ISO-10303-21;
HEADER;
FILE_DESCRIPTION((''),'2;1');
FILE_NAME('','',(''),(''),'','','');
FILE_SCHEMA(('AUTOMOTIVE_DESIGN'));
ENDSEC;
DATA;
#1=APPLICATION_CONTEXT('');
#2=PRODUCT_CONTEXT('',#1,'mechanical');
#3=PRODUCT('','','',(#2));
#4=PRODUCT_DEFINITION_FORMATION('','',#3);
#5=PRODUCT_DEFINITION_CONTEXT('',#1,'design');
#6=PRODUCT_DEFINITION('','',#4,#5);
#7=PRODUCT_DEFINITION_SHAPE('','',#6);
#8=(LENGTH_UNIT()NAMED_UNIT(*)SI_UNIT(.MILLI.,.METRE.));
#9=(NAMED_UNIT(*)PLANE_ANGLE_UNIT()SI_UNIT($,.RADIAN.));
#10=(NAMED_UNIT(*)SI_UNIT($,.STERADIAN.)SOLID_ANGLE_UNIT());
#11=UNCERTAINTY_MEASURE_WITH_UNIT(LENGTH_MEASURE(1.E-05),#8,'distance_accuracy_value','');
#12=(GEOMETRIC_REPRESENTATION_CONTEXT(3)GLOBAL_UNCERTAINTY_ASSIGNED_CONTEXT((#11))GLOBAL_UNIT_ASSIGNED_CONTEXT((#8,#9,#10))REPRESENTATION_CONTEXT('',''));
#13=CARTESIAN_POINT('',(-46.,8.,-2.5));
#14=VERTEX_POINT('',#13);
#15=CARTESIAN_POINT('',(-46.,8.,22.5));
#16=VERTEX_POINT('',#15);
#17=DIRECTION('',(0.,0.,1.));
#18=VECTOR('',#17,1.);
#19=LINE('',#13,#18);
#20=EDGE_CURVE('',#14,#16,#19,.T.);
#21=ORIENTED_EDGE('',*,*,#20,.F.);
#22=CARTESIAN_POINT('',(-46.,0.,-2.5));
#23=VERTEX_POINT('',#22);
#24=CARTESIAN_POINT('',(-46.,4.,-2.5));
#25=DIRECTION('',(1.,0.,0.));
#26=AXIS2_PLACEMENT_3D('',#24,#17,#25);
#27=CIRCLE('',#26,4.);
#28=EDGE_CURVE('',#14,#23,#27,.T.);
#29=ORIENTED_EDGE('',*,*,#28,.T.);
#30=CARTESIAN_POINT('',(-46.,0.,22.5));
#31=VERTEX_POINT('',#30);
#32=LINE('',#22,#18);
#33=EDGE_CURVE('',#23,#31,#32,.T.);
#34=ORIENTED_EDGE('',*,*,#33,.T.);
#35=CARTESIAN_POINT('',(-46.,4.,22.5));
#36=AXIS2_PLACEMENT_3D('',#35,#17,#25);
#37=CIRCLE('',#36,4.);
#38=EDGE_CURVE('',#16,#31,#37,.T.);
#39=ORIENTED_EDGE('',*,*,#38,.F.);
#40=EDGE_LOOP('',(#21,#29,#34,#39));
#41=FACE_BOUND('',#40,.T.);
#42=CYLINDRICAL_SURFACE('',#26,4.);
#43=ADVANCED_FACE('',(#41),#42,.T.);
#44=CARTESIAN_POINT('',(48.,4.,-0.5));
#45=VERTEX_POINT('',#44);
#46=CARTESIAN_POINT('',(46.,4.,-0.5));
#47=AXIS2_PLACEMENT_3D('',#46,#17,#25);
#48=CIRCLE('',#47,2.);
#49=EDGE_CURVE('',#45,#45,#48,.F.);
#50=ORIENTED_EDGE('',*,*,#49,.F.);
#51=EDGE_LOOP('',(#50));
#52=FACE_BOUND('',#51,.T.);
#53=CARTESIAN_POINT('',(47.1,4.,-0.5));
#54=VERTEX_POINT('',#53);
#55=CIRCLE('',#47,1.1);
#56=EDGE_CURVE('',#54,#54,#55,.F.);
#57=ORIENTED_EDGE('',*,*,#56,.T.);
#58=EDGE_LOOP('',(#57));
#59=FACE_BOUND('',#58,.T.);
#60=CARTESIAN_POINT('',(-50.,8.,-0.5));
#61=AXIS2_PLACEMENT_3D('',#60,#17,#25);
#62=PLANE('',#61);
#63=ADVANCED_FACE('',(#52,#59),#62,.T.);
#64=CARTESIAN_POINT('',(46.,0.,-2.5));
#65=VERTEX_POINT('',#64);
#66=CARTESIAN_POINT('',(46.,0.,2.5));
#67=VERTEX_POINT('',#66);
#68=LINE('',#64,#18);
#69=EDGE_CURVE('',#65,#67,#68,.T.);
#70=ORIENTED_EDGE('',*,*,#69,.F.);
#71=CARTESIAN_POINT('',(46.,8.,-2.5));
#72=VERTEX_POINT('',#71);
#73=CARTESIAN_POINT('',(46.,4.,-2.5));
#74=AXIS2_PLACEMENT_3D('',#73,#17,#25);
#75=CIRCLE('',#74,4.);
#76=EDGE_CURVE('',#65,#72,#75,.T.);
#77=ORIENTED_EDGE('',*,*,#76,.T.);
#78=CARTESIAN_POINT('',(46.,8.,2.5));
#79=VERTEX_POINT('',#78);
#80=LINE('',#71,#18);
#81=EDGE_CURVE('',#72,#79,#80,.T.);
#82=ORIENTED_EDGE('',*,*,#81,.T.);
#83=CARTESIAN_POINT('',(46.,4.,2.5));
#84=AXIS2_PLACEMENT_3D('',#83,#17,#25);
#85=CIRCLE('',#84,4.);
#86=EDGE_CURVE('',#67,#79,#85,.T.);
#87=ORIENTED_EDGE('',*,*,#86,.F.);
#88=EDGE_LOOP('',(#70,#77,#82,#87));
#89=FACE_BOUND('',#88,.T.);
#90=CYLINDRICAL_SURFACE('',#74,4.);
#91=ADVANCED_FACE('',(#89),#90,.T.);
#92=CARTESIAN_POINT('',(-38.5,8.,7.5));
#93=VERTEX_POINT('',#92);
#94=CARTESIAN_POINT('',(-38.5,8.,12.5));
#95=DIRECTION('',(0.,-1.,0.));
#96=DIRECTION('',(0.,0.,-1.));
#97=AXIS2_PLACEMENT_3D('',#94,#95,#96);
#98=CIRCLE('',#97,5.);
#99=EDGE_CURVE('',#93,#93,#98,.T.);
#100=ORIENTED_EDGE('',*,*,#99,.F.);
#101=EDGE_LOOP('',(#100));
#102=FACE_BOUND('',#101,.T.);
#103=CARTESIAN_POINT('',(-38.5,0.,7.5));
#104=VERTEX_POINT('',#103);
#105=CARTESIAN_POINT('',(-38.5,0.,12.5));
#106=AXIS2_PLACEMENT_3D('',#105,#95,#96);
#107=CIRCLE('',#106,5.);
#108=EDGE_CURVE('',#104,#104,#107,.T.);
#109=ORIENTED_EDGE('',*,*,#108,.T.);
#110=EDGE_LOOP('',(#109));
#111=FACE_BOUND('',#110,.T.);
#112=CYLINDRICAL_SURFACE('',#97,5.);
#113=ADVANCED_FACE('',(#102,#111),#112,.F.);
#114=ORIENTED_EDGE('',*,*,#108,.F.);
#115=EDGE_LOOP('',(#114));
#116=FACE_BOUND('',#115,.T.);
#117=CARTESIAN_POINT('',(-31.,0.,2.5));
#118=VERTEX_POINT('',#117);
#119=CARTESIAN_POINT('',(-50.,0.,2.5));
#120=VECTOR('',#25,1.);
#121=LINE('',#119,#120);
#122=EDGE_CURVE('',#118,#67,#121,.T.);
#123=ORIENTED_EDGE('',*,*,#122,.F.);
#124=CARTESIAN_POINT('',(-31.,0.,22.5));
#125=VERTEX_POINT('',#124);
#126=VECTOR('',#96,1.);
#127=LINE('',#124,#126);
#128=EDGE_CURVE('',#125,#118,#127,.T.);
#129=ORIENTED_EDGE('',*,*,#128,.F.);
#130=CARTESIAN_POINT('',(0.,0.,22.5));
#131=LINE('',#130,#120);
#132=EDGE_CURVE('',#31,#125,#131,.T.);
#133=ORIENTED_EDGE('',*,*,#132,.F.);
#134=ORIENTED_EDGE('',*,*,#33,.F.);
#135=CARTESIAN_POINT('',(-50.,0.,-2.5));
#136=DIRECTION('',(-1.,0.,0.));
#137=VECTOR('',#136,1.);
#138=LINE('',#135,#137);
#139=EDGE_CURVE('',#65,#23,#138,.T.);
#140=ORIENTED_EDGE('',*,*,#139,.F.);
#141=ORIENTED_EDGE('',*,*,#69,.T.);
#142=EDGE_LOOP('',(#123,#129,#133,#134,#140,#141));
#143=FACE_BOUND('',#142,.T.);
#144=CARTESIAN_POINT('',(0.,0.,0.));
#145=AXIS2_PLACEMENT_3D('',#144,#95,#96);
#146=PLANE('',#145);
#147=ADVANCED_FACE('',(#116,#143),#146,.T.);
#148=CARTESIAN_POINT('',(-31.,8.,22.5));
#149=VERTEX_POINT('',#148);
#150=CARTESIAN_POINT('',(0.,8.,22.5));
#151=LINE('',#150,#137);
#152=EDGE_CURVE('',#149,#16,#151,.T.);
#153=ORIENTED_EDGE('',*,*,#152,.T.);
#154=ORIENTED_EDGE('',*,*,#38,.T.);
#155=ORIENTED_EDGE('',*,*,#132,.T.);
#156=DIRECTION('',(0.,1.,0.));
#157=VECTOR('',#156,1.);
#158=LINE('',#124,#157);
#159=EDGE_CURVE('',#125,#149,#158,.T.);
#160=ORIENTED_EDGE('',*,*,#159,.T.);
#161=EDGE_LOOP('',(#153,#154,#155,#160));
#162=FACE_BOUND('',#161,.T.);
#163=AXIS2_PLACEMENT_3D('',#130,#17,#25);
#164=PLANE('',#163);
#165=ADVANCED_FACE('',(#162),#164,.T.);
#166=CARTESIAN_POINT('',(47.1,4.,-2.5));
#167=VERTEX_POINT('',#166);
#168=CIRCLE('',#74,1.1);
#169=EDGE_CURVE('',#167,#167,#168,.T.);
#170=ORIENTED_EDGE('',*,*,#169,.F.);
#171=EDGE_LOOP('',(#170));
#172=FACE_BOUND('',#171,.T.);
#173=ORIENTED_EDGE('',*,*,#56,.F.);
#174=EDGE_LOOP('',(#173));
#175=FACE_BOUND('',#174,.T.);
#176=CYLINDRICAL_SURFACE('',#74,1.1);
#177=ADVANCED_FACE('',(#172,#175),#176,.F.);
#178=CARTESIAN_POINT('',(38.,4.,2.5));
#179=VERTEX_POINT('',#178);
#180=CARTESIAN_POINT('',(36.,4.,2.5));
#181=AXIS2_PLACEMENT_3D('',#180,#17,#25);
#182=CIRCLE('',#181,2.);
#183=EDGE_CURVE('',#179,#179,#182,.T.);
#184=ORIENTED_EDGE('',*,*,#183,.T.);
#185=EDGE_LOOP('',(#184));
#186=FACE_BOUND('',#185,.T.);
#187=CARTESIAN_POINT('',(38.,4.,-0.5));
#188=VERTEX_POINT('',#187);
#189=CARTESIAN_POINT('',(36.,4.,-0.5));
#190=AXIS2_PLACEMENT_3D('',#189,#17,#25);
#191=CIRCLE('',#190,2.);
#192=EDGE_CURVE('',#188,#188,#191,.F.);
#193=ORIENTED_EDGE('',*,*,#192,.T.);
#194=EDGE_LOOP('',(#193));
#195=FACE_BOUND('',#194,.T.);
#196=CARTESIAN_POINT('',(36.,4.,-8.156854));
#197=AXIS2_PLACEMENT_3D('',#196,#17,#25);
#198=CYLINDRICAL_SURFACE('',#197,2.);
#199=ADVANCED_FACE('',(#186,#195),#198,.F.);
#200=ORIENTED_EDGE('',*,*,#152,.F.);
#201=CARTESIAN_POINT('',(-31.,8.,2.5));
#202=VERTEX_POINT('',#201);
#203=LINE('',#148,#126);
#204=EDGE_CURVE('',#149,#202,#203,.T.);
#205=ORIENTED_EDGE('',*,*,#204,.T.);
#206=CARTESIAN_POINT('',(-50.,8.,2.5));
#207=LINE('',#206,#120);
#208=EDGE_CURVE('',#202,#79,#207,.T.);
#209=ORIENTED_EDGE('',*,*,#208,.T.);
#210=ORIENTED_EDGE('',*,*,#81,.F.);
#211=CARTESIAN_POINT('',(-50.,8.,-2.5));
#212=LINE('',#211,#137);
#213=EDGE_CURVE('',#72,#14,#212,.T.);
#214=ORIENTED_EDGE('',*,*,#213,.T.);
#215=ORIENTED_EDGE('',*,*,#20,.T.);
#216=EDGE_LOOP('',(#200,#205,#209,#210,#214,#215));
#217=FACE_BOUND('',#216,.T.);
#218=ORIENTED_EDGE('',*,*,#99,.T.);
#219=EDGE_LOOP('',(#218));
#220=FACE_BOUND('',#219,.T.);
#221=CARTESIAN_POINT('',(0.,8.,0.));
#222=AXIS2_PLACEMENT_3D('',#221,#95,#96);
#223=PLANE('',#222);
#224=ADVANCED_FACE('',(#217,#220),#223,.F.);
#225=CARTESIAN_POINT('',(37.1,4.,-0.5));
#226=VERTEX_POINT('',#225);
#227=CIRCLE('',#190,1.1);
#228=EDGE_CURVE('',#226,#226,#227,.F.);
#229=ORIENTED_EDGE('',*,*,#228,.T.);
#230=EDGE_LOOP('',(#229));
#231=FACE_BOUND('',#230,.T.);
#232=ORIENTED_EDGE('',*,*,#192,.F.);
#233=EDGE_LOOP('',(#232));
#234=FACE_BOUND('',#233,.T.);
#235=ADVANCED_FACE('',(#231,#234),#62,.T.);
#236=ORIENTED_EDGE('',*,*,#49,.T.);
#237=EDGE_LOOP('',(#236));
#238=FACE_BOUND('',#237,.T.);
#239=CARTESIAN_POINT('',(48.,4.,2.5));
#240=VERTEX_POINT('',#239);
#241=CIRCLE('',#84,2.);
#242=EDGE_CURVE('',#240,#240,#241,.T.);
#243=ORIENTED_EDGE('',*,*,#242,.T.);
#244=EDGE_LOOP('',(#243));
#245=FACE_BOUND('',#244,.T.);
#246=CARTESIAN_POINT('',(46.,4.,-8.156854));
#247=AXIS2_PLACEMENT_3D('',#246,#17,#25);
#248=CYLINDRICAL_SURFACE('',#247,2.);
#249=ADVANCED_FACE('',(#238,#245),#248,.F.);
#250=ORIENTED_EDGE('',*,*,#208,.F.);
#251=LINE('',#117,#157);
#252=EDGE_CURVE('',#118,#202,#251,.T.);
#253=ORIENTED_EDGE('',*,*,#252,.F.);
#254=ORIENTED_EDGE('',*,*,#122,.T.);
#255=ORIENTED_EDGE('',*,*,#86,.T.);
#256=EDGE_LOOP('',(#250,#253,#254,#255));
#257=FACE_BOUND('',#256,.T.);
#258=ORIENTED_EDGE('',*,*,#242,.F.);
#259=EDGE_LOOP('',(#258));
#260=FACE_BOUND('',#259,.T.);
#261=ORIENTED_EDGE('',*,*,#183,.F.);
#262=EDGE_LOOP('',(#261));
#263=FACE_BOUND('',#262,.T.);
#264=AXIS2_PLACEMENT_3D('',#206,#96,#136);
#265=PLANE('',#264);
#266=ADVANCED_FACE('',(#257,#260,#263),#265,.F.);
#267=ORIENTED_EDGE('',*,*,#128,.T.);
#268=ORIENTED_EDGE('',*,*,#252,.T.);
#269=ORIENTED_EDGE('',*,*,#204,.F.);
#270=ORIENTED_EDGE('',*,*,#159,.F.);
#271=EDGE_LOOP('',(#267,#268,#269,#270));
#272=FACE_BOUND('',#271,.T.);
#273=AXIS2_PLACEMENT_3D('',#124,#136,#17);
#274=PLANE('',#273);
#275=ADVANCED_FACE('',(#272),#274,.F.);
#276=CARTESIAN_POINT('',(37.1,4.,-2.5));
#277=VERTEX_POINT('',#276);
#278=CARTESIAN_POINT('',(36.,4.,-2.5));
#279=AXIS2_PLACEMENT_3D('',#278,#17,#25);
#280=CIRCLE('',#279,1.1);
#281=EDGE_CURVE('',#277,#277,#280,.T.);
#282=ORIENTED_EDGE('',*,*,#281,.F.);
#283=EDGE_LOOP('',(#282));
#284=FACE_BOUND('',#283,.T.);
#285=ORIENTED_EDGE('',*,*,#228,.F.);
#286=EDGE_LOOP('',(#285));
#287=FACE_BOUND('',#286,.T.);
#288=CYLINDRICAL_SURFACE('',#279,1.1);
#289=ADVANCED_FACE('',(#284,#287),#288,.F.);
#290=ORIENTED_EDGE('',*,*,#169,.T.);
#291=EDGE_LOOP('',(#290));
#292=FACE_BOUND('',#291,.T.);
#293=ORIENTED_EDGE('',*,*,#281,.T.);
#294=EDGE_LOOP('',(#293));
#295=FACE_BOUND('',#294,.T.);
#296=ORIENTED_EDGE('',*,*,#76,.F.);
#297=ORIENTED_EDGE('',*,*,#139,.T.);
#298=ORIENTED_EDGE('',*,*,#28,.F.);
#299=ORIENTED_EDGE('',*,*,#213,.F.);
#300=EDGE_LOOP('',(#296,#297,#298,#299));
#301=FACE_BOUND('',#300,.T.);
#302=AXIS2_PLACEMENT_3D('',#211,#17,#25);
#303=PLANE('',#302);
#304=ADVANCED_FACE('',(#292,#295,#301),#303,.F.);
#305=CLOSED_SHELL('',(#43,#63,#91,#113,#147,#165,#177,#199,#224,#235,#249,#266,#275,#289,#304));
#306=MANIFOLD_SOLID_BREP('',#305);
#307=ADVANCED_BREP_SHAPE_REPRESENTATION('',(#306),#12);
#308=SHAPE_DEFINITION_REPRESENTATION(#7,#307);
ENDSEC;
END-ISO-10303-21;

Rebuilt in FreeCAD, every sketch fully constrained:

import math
import FreeCAD as App
import Part
import Sketcher
Q = App.Units.Quantity

doc = App.newDocument("Part")
body = doc.addObject("PartDesign::Body", "Body")

sketch1 = doc.addObject("Sketcher::SketchObject", "Sketch")
body.addObject(sketch1)
sketch1.AttachmentSupport = (doc.XZ_Plane, [""])
sketch1.MapMode = "FlatFace"
sketch1.addGeometry([
    Part.LineSegment(App.Vector(-50, -2, 0), App.Vector(-50, 2, 0)),
    Part.LineSegment(App.Vector(-50, 2, 0), App.Vector(50, 2, 0)),
    Part.LineSegment(App.Vector(50, 2, 0), App.Vector(50, -2, 0)),
    Part.LineSegment(App.Vector(50, -2, 0), App.Vector(-50, -2, 0)),
], False)
sketch1.addConstraint([
    Sketcher.Constraint("Coincident", 0, 2, 1, 1),
    Sketcher.Constraint("Coincident", 1, 2, 2, 1),
    Sketcher.Constraint("Coincident", 2, 2, 3, 1),
    Sketcher.Constraint("Coincident", 3, 2, 0, 1),
    Sketcher.Constraint("Vertical", 0),
    Sketcher.Constraint("Horizontal", 1),
    Sketcher.Constraint("Vertical", 2),
    Sketcher.Constraint("Horizontal", 3),
    Sketcher.Constraint("Symmetric", 0, 2, 2, 2, -1, 1),
    Sketcher.Constraint("DistanceX", 1, 1, 1, 2, Q("100 mm")),
    Sketcher.Constraint("DistanceY", 0, 1, 0, 2, Q("5 mm")),
])
pad1 = doc.addObject("PartDesign::Pad", "Pad")
body.addObject(pad1)
pad1.Profile = sketch1
pad1.Length = 8
pad1.Reversed = True

sketch2 = doc.addObject("Sketcher::SketchObject", "Sketch001")
body.addObject(sketch2)
sketch2.AttachmentSupport = (doc.XY_Plane, [""])
sketch2.MapMode = "FlatFace"
sketch2.AttachmentOffset = App.Placement(App.Vector(0, 0, 2.5), App.Rotation())
sketch2.addGeometry([
    Part.Circle(App.Vector(46, 4, 0), App.Vector(0, 0, 1), 1.1),
    Part.Circle(App.Vector(36, 4, 0), App.Vector(0, 0, 1), 1.1),
], False)
sketch2.addConstraint([
    Sketcher.Constraint("Equal", 0, 1),
    Sketcher.Constraint("Horizontal", 0, 3, 1, 3),
    Sketcher.Constraint("Diameter", 0, Q("2.2 mm")),
    Sketcher.Constraint("DistanceX", -1, 1, 0, 3, Q("46 mm")),
    Sketcher.Constraint("DistanceY", -1, 1, 0, 3, Q("4 mm")),
    Sketcher.Constraint("DistanceX", -1, 1, 1, 3, Q("36 mm")),
])
pocket1 = doc.addObject("PartDesign::Pocket", "Pocket")
body.addObject(pocket1)
pocket1.Profile = sketch2
pocket1.Type = "ThroughAll"

sketch3 = doc.addObject("Sketcher::SketchObject", "Sketch002")
body.addObject(sketch3)
sketch3.AttachmentSupport = (doc.XY_Plane, [""])
sketch3.MapMode = "FlatFace"
sketch3.AttachmentOffset = App.Placement(App.Vector(0, 0, 2.5), App.Rotation())
sketch3.addGeometry([
    Part.Circle(App.Vector(36, 4, 0), App.Vector(0, 0, 1), 2),
    Part.Circle(App.Vector(46, 4, 0), App.Vector(0, 0, 1), 2),
], False)
sketch3.addConstraint([
    Sketcher.Constraint("Equal", 0, 1),
    Sketcher.Constraint("Horizontal", 0, 3, 1, 3),
    Sketcher.Constraint("Diameter", 0, Q("4 mm")),
    Sketcher.Constraint("DistanceX", -1, 1, 0, 3, Q("36 mm")),
    Sketcher.Constraint("DistanceY", -1, 1, 0, 3, Q("4 mm")),
    Sketcher.Constraint("DistanceX", -1, 1, 1, 3, Q("46 mm")),
])
pocket2 = doc.addObject("PartDesign::Pocket", "Pocket001")
body.addObject(pocket2)
pocket2.Profile = sketch3
pocket2.Length = 3

sketch4 = doc.addObject("Sketcher::SketchObject", "Sketch003")
body.addObject(sketch4)
sketch4.AttachmentSupport = (doc.XY_Plane, [""])
sketch4.MapMode = "FlatFace"
sketch4.AttachmentOffset = App.Placement(App.Vector(0, 0, 2.5), App.Rotation())
sketch4.addGeometry([
    Part.ArcOfCircle(Part.Circle(App.Vector(46, 4, 0), App.Vector(0, 0, 1), 4), math.radians(-90), math.radians(0)),
    Part.LineSegment(App.Vector(46, 0, 0), App.Vector(50, 0, 0)),
    Part.LineSegment(App.Vector(50, 0, 0), App.Vector(50, 4, 0)),
    Part.LineSegment(App.Vector(50, 8, 0), App.Vector(46, 8, 0)),
    Part.ArcOfCircle(Part.Circle(App.Vector(46, 4, 0), App.Vector(0, 0, 1), 4), math.radians(0), math.radians(90)),
    Part.LineSegment(App.Vector(50, 4, 0), App.Vector(50, 8, 0)),
], False)
sketch4.addConstraint([
    Sketcher.Constraint("Tangent", 0, 1, 1, 1),
    Sketcher.Constraint("Coincident", 1, 2, 2, 1),
    Sketcher.Constraint("Tangent", 2, 2, 0, 2),
    Sketcher.Constraint("Tangent", 3, 2, 4, 2),
    Sketcher.Constraint("Tangent", 4, 1, 5, 1),
    Sketcher.Constraint("Coincident", 5, 2, 3, 1),
    Sketcher.Constraint("Horizontal", 1),
    Sketcher.Constraint("Vertical", 2),
    Sketcher.Constraint("Horizontal", 3),
    Sketcher.Constraint("Vertical", 5),
    Sketcher.Constraint("Coincident", 4, 3, 0, 3),
    Sketcher.Constraint("Equal", 0, 4),
    Sketcher.Constraint("PointOnObject", 0, 1, -1),
    Sketcher.Constraint("Radius", 0, Q("4 mm")),
    Sketcher.Constraint("DistanceX", -1, 1, 0, 3, Q("46 mm")),
])
pocket3 = doc.addObject("PartDesign::Pocket", "Pocket002")
body.addObject(pocket3)
pocket3.Profile = sketch4
pocket3.Type = "ThroughAll"

sketch5 = doc.addObject("Sketcher::SketchObject", "Sketch004")
body.addObject(sketch5)
sketch5.AttachmentSupport = (doc.XY_Plane, [""])
sketch5.MapMode = "FlatFace"
sketch5.AttachmentOffset = App.Placement(App.Vector(0, 0, 2.5), App.Rotation())
sketch5.addGeometry([
    Part.ArcOfCircle(Part.Circle(App.Vector(-46, 4, 0), App.Vector(0, 0, 1), 4), math.radians(90), math.radians(180)),
    Part.LineSegment(App.Vector(-46, 8, 0), App.Vector(-50, 8, 0)),
    Part.LineSegment(App.Vector(-50, 8, 0), App.Vector(-50, 4, 0)),
    Part.LineSegment(App.Vector(-50, 0, 0), App.Vector(-46, 0, 0)),
    Part.ArcOfCircle(Part.Circle(App.Vector(-46, 4, 0), App.Vector(0, 0, 1), 4), math.radians(180), math.radians(270)),
    Part.LineSegment(App.Vector(-50, 4, 0), App.Vector(-50, 0, 0)),
], False)
sketch5.addConstraint([
    Sketcher.Constraint("Tangent", 0, 1, 1, 1),
    Sketcher.Constraint("Coincident", 1, 2, 2, 1),
    Sketcher.Constraint("Tangent", 2, 2, 0, 2),
    Sketcher.Constraint("Tangent", 3, 2, 4, 2),
    Sketcher.Constraint("Tangent", 4, 1, 5, 1),
    Sketcher.Constraint("Coincident", 5, 2, 3, 1),
    Sketcher.Constraint("Horizontal", 1),
    Sketcher.Constraint("Vertical", 2),
    Sketcher.Constraint("Horizontal", 3),
    Sketcher.Constraint("Vertical", 5),
    Sketcher.Constraint("Coincident", 4, 3, 0, 3),
    Sketcher.Constraint("Equal", 0, 4),
    Sketcher.Constraint("PointOnObject", 3, 2, -1),
    Sketcher.Constraint("Radius", 0, Q("4 mm")),
    Sketcher.Constraint("DistanceX", 0, 3, -1, 1, Q("46 mm")),
])
pocket4 = doc.addObject("PartDesign::Pocket", "Pocket003")
body.addObject(pocket4)
pocket4.Profile = sketch5
pocket4.Type = "ThroughAll"

sketch6 = doc.addObject("Sketcher::SketchObject", "Sketch005")
body.addObject(sketch6)
sketch6.AttachmentSupport = (doc.XY_Plane, [""])
sketch6.MapMode = "FlatFace"
sketch6.AttachmentOffset = App.Placement(App.Vector(0, 0, 22.5), App.Rotation())
sketch6.addGeometry([
    Part.ArcOfCircle(Part.Circle(App.Vector(-46, 4, 0), App.Vector(0, 0, 1), 4), math.radians(90), math.radians(270)),
    Part.LineSegment(App.Vector(-46, 0, 0), App.Vector(-31, 0, 0)),
    Part.LineSegment(App.Vector(-31, 0, 0), App.Vector(-31, 8, 0)),
    Part.LineSegment(App.Vector(-31, 8, 0), App.Vector(-46, 8, 0)),
], False)
sketch6.addConstraint([
    Sketcher.Constraint("Tangent", 0, 2, 1, 1),
    Sketcher.Constraint("Coincident", 1, 2, 2, 1),
    Sketcher.Constraint("Coincident", 2, 2, 3, 1),
    Sketcher.Constraint("Tangent", 3, 2, 0, 1),
    Sketcher.Constraint("Horizontal", 1),
    Sketcher.Constraint("Vertical", 2),
    Sketcher.Constraint("Horizontal", 3),
    Sketcher.Constraint("PointOnObject", 0, 2, -1),
    Sketcher.Constraint("Radius", 0, Q("4 mm")),
    Sketcher.Constraint("DistanceX", 1, 1, 1, 2, Q("15 mm")),
    Sketcher.Constraint("DistanceX", 0, 3, -1, 1, Q("46 mm")),
])
pad2 = doc.addObject("PartDesign::Pad", "Pad001")
body.addObject(pad2)
pad2.Profile = sketch6
pad2.Length = 20
pad2.Reversed = True

sketch7 = doc.addObject("Sketcher::SketchObject", "Sketch006")
body.addObject(sketch7)
sketch7.AttachmentSupport = (doc.XZ_Plane, [""])
sketch7.MapMode = "FlatFace"
sketch7.addGeometry(Part.Circle(App.Vector(-38, 12, 0), App.Vector(0, 0, 1), 5), False)
sketch7.addConstraint([
    Sketcher.Constraint("Diameter", 0, Q("10 mm")),
    Sketcher.Constraint("DistanceX", 0, 3, -1, 1, Q("38.5 mm")),
    Sketcher.Constraint("DistanceY", -1, 1, 0, 3, Q("12.5 mm")),
])
pocket5 = doc.addObject("PartDesign::Pocket", "Pocket004")
body.addObject(pocket5)
pocket5.Profile = sketch7
pocket5.Type = "ThroughAll"

doc.recompute()
